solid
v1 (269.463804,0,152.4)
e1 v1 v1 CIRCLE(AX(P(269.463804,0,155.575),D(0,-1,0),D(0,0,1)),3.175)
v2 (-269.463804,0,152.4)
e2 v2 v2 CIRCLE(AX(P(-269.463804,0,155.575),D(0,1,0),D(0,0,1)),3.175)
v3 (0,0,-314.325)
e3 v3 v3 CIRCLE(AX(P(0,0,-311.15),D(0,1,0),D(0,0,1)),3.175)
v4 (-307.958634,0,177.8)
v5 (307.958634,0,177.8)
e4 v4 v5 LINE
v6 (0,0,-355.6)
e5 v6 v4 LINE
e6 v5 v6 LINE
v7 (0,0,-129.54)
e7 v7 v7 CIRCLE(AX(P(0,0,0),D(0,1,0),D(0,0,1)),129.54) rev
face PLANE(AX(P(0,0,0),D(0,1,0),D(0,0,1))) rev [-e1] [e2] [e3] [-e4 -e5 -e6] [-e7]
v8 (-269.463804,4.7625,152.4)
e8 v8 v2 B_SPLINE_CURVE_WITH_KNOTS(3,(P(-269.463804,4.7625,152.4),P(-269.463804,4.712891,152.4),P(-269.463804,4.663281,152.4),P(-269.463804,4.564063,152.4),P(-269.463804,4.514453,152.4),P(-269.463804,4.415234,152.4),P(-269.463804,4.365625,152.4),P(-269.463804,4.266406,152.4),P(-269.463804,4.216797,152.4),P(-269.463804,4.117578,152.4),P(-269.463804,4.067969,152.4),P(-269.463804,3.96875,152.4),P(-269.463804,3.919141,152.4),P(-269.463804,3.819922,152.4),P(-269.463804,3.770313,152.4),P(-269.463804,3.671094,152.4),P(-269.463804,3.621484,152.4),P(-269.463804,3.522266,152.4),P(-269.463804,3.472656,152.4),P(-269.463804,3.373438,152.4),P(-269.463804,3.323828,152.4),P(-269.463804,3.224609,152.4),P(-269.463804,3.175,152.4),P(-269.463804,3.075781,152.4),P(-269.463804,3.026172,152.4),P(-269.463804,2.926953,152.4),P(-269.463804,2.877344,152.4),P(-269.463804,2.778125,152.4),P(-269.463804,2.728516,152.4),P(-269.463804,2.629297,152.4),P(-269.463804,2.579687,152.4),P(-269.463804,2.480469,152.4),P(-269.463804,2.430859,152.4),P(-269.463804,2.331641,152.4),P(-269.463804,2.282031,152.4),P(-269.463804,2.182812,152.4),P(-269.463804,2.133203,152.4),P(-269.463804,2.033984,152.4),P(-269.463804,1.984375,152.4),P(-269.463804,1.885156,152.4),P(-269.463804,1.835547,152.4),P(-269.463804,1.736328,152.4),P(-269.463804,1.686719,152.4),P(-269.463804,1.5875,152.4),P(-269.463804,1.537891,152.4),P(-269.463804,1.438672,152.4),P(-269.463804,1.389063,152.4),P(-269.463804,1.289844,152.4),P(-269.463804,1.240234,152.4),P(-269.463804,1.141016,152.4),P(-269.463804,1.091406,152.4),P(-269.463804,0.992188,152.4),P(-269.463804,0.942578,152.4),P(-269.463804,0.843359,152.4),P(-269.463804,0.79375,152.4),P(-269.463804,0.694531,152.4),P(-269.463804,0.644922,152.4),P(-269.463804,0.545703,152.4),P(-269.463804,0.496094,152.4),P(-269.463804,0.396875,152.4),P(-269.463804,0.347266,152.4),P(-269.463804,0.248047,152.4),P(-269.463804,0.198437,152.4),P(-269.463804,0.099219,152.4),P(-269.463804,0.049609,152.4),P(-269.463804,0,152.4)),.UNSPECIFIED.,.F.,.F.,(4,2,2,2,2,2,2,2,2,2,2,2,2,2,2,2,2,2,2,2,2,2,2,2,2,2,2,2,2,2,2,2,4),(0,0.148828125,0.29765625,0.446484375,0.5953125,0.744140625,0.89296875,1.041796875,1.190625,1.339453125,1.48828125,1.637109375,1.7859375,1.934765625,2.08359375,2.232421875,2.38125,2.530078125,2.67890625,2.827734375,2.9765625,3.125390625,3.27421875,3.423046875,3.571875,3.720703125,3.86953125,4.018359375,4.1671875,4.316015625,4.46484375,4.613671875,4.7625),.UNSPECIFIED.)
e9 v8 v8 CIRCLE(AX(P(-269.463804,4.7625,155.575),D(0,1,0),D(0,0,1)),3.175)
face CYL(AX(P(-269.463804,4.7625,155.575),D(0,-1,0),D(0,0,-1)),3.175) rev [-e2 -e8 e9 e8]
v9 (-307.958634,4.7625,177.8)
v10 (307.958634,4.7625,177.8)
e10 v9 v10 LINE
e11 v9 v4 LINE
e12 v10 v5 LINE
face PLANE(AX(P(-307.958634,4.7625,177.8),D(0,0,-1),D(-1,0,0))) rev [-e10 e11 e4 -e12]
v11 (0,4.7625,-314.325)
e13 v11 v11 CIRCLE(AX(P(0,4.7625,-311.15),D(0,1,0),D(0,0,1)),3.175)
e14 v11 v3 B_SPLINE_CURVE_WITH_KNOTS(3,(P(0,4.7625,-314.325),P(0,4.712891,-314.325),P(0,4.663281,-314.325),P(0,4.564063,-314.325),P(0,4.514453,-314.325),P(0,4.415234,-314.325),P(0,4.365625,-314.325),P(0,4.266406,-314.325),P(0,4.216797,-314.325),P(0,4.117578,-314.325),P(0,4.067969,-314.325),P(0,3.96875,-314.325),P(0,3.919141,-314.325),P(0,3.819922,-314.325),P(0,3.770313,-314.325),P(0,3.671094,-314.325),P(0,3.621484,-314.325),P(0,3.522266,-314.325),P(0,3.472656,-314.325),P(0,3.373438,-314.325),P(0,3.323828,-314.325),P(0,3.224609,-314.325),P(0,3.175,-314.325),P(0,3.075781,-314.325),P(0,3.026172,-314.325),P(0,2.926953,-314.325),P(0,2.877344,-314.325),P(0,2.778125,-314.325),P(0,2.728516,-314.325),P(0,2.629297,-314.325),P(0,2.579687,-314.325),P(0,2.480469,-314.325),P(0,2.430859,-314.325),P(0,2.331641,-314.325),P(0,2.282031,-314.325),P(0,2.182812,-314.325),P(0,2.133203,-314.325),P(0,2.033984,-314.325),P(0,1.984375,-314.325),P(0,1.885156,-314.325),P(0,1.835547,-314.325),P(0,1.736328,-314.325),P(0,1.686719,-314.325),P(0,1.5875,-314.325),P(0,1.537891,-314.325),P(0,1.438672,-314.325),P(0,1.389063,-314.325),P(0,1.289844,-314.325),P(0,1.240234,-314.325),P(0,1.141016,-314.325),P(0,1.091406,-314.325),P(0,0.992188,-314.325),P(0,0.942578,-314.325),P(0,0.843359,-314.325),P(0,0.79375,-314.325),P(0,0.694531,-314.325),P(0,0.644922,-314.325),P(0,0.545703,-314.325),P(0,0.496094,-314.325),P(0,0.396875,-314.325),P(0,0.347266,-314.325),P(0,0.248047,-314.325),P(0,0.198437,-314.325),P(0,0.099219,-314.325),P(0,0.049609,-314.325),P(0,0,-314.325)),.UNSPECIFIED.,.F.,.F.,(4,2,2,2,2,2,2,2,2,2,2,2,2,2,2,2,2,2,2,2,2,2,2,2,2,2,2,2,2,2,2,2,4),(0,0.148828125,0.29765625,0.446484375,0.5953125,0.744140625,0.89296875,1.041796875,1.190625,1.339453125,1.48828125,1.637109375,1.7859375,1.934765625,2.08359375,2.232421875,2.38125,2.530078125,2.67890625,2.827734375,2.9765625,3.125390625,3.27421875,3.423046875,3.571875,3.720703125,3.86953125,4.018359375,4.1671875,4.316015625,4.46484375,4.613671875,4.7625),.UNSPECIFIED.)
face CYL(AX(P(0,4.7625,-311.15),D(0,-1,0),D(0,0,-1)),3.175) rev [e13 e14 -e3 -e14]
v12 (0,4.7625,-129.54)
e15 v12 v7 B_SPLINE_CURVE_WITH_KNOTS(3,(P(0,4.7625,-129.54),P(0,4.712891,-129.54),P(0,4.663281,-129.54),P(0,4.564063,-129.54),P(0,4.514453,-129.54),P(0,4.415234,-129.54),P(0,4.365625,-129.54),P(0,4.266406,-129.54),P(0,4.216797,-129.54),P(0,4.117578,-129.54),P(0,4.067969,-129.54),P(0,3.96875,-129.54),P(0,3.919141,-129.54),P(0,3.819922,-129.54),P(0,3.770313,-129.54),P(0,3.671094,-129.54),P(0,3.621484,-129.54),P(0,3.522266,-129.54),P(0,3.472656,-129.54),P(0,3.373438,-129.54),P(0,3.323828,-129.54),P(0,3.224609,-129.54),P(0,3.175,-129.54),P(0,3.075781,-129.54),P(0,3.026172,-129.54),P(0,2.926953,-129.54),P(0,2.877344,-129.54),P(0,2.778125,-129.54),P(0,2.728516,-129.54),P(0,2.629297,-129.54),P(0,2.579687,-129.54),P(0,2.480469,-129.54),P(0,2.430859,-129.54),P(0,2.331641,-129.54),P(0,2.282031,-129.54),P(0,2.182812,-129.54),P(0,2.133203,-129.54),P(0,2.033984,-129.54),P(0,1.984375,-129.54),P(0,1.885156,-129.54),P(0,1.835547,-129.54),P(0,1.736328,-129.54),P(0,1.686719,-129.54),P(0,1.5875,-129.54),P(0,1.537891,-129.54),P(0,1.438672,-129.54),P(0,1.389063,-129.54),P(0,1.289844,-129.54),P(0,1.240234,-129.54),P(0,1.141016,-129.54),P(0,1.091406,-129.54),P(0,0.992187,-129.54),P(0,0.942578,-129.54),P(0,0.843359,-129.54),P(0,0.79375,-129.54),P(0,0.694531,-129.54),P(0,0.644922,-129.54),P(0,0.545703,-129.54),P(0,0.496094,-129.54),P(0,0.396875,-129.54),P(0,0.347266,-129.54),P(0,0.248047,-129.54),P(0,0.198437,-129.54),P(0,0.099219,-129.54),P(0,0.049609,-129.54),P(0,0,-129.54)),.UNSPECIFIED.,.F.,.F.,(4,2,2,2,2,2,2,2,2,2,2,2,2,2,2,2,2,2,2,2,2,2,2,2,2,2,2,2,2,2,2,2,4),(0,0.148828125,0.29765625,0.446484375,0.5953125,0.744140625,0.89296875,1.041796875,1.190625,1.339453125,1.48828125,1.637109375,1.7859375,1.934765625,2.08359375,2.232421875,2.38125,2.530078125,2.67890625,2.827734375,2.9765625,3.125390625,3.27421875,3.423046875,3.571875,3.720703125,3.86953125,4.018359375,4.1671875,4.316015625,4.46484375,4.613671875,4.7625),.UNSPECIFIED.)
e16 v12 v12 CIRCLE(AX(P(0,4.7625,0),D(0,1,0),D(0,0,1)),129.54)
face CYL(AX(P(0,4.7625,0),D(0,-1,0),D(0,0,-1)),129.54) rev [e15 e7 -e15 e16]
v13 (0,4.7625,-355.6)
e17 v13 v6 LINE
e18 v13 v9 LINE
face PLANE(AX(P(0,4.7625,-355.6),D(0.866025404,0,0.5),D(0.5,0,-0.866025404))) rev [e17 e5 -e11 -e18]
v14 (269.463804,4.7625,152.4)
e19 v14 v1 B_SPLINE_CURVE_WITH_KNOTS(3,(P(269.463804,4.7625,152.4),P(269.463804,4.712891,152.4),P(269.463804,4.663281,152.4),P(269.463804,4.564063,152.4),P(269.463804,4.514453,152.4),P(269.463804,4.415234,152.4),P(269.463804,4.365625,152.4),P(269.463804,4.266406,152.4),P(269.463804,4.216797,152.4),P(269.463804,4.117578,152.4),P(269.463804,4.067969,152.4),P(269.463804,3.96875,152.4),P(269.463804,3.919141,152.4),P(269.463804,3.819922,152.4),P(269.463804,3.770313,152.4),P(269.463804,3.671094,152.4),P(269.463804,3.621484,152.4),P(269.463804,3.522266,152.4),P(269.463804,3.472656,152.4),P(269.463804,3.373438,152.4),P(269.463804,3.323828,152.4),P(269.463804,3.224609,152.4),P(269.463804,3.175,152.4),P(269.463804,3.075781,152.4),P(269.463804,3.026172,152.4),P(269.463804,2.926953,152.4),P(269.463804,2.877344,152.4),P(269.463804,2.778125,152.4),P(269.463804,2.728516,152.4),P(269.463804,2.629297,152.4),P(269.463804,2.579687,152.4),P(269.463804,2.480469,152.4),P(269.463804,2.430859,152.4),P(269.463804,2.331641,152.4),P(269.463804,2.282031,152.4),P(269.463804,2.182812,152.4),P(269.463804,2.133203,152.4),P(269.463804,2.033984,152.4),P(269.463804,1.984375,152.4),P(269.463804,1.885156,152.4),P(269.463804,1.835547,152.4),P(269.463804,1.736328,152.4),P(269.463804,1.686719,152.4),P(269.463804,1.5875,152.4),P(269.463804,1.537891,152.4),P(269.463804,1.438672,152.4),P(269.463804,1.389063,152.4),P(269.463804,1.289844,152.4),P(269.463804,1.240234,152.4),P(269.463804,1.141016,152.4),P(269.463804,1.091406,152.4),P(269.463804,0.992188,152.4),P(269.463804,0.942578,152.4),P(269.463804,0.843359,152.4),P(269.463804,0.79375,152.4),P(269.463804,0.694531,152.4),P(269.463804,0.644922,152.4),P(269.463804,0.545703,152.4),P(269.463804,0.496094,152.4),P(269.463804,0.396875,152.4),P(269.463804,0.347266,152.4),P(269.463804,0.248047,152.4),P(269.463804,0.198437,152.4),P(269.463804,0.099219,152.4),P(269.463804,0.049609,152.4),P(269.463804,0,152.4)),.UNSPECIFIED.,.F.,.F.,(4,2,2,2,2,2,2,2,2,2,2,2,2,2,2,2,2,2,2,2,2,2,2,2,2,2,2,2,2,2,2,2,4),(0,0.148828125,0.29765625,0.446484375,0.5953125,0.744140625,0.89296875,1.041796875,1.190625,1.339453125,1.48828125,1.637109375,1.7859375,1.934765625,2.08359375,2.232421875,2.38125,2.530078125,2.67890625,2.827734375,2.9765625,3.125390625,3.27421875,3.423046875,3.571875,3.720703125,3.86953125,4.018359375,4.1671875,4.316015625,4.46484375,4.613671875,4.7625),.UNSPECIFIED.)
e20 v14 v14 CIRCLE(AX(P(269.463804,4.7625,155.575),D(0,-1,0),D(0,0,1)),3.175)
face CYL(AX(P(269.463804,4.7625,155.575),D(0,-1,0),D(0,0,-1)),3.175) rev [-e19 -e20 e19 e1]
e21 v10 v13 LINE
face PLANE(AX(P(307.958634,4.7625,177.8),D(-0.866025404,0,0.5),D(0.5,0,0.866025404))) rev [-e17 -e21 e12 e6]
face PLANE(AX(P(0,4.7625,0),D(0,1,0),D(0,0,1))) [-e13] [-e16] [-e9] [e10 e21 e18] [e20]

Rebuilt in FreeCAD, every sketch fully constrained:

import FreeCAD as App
import Part
import Sketcher
from FreeCAD import Vector
Q = App.Units.Quantity

doc = App.newDocument("Part")
params = doc.addObject("Spreadsheet::Sheet", "Params")
for row, (alias, value) in enumerate([
    ("pad1_length", "0.1875 in"),
    ("sketch2_diameter", "10.2 in"),
    ("sketch3_diameter", "0.25 in"),
    ("pocket2_length", "0.1875 in"),
], start=1):
    params.set(f"A{row}", alias)
    params.set(f"B{row}", "=" + value)
    params.setAlias(f"B{row}", alias)

body = doc.addObject("PartDesign::Body", "Body")

sketch1 = body.newObject("Sketcher::SketchObject", "Sketch")
sketch1.AttachmentSupport = (doc.getObject("XZ_Plane"), [""])
sketch1.MapMode = "FlatFace"
sketch1.addGeometry(Part.LineSegment(Vector(0, -356, 0), Vector(-308, 178, 0)), False)
sketch1.addGeometry(Part.LineSegment(Vector(-308, 178, 0), Vector(308, 178, 0)), False)
sketch1.addGeometry(Part.LineSegment(Vector(308, 178, 0), Vector(0, -356, 0)), False)
sketch1.addConstraint(Sketcher.Constraint("Coincident", 0, 2, 1, 1))
sketch1.addConstraint(Sketcher.Constraint("Coincident", 1, 2, 2, 1))
sketch1.addConstraint(Sketcher.Constraint("Coincident", 2, 2, 0, 1))
sketch1.addConstraint(Sketcher.Constraint("Horizontal", 1))
sketch1.addConstraint(Sketcher.Constraint("PointOnObject", 2, 2, -2))
sketch1.addConstraint(Sketcher.Constraint("Equal", 0, 2))
sketch1.addConstraint(Sketcher.Constraint("DistanceY", -1, 1, 0, 2, Q("7 in")))
sketch1.addConstraint(Sketcher.Constraint("DistanceY", 2, 2, -1, 1, Q("14 in")))
sketch1.addConstraint(Sketcher.Constraint("Angle", 0, Q("120 deg")))
pad1 = body.newObject("PartDesign::Pad", "Pad")
pad1.Profile = sketch1
pad1.setExpression("Length", "Params.pad1_length")
pad1.Reversed = True

sketch2 = body.newObject("Sketcher::SketchObject", "Sketch001")
sketch2.AttachmentSupport = (doc.getObject("XZ_Plane"), [""])
sketch2.MapMode = "FlatFace"
sketch2.addGeometry(Part.Circle(Vector(0, 0, 0), Vector(0, 0, 1), 130), False)
sketch2.addConstraint(Sketcher.Constraint("Coincident", 0, 3, -1, 1))
sketch2.addConstraint(Sketcher.Constraint("Diameter", 0, Q("10.2 in")))
sketch2.setExpression("Constraints[1]", "Params.sketch2_diameter")
pocket1 = body.newObject("PartDesign::Pocket", "Pocket")
pocket1.Profile = sketch2
pocket1.Type = "ThroughAll"
pocket1.Midplane = True

sketch3 = body.newObject("Sketcher::SketchObject", "Sketch002")
sketch3.AttachmentSupport = (doc.getObject("XZ_Plane"), [""])
sketch3.MapMode = "FlatFace"
sketch3.addGeometry(Part.Circle(Vector(-269.5, 155.6, 0), Vector(0, 0, 1), 3.2), False)
sketch3.addGeometry(Part.Circle(Vector(0, -311.1, 0), Vector(0, 0, 1), 3.2), False)
sketch3.addConstraint(Sketcher.Constraint("Equal", 0, 1))
sketch3.addConstraint(Sketcher.Constraint("PointOnObject", 1, 3, -2))
sketch3.addConstraint(Sketcher.Constraint("Diameter", 0, Q("0.25 in")))
sketch3.addConstraint(Sketcher.Constraint("DistanceY", 1, 3, -1, 1, Q("12.25 in")))
sketch3.addConstraint(Sketcher.Constraint("DistanceY", -1, 1, 0, 3, Q("6.125 in")))
sketch3.addConstraint(Sketcher.Constraint("DistanceX", 0, 3, -1, 1, Q("269.463804 mm")))
sketch3.setExpression("Constraints[2]", "Params.sketch3_diameter")
pocket2 = body.newObject("PartDesign::Pocket", "Pocket001")
pocket2.Profile = sketch3
pocket2.setExpression("Length", "Params.pocket2_length")
doc.recompute()

mirrored = body.newObject("PartDesign::Mirrored", "Mirrored")
mirrored.Originals = [pocket2]
mirrored.MirrorPlane = (doc.getObject("YZ_Plane"), [""])
body.Tip = mirrored

doc.recompute()
